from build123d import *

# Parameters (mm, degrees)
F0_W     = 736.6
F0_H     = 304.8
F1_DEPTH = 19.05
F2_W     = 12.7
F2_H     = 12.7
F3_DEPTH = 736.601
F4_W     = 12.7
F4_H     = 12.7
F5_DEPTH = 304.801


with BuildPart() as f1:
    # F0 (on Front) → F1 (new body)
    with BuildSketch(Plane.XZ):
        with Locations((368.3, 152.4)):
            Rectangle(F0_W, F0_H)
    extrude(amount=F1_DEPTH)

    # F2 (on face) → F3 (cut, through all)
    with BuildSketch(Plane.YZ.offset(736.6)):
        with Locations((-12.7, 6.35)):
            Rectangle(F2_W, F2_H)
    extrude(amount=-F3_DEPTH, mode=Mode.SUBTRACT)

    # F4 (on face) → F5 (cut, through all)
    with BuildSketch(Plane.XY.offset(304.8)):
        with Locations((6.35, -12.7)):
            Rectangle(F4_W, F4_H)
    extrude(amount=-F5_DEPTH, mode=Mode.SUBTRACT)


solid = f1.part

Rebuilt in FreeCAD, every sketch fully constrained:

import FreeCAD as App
import Part
import Sketcher
from FreeCAD import Vector
Q = App.Units.Quantity

doc = App.newDocument("Part")
params = doc.addObject("Spreadsheet::Sheet", "Params")
for row, (alias, value) in enumerate([
    ("sketch1_width", "29 in"),
    ("sketch1_height", "12 in"),
    ("pad1_length", "0.75 in"),
    ("sketch2_width", "0.5 in"),
    ("sketch3_width", "0.5 in"),
], start=1):
    params.set(f"A{row}", alias)
    params.set(f"B{row}", "=" + value)
    params.setAlias(f"B{row}", alias)

body = doc.addObject("PartDesign::Body", "Body")

sketch1 = body.newObject("Sketcher::SketchObject", "Sketch")
sketch1.AttachmentSupport = (doc.getObject("XZ_Plane"), [""])
sketch1.MapMode = "FlatFace"
sketch1.addGeometry([
    Part.LineSegment(Vector(0, 305, 0), Vector(0, 0, 0)),
    Part.LineSegment(Vector(0, 0, 0), Vector(737, 0, 0)),
    Part.LineSegment(Vector(737, 0, 0), Vector(737, 305, 0)),
    Part.LineSegment(Vector(737, 305, 0), Vector(0, 305, 0)),
], False)
sketch1.addConstraint([
    Sketcher.Constraint("Coincident", 0, 2, 1, 1),
    Sketcher.Constraint("Coincident", 1, 2, 2, 1),
    Sketcher.Constraint("Coincident", 2, 2, 3, 1),
    Sketcher.Constraint("Coincident", 3, 2, 0, 1),
    Sketcher.Constraint("Vertical", 0),
    Sketcher.Constraint("Horizontal", 1),
    Sketcher.Constraint("Vertical", 2),
    Sketcher.Constraint("Horizontal", 3),
    Sketcher.Constraint("Coincident", 0, 2, -1, 1),
    Sketcher.Constraint("DistanceX", 1, 1, 1, 2, Q("29 in")),
    Sketcher.Constraint("DistanceY", 0, 2, 0, 1, Q("12 in")),
])
sketch1.setExpression("Constraints[9]", "Params.sketch1_width")
sketch1.setExpression("Constraints[10]", "Params.sketch1_height")
pad1 = body.newObject("PartDesign::Pad", "Pad")
pad1.Profile = sketch1
pad1.setExpression("Length", "Params.pad1_length")

sketch2 = body.newObject("Sketcher::SketchObject", "Sketch001")
sketch2.AttachmentSupport = (doc.getObject("YZ_Plane"), [""])
sketch2.MapMode = "FlatFace"
sketch2.AttachmentOffset = App.Placement(Vector(0, 0, 29 * 25.4), App.Rotation())
sketch2.addGeometry([
    Part.LineSegment(Vector(-19, 13, 0), Vector(-19, 0, 0)),
    Part.LineSegment(Vector(-19, 0, 0), Vector(-6, 0, 0)),
    Part.LineSegment(Vector(-6, 0, 0), Vector(-6, 13, 0)),
    Part.LineSegment(Vector(-6, 13, 0), Vector(-19, 13, 0)),
], False)
sketch2.addConstraint([
    Sketcher.Constraint("Coincident", 0, 2, 1, 1),
    Sketcher.Constraint("Coincident", 1, 2, 2, 1),
    Sketcher.Constraint("Coincident", 2, 2, 3, 1),
    Sketcher.Constraint("Coincident", 3, 2, 0, 1),
    Sketcher.Constraint("Vertical", 0),
    Sketcher.Constraint("Horizontal", 1),
    Sketcher.Constraint("Vertical", 2),
    Sketcher.Constraint("Horizontal", 3),
    Sketcher.Constraint("PointOnObject", 0, 2, -1),
    Sketcher.Constraint("Equal", 3, 0),
    Sketcher.Constraint("DistanceX", 1, 1, 1, 2, Q("0.5 in")),
    Sketcher.Constraint("DistanceX", 0, 2, -1, 1, Q("0.75 in")),
])
sketch2.setExpression("Constraints[10]", "Params.sketch2_width")
pocket1 = body.newObject("PartDesign::Pocket", "Pocket")
pocket1.Profile = sketch2
pocket1.Type = "ThroughAll"

sketch3 = body.newObject("Sketcher::SketchObject", "Sketch002")
sketch3.AttachmentSupport = (doc.getObject("XY_Plane"), [""])
sketch3.MapMode = "FlatFace"
sketch3.AttachmentOffset = App.Placement(Vector(0, 0, 12 * 25.4), App.Rotation())
sketch3.addGeometry([
    Part.LineSegment(Vector(0, -6, 0), Vector(0, -19, 0)),
    Part.LineSegment(Vector(0, -19, 0), Vector(13, -19, 0)),
    Part.LineSegment(Vector(13, -19, 0), Vector(13, -6, 0)),
    Part.LineSegment(Vector(13, -6, 0), Vector(0, -6, 0)),
], False)
sketch3.addConstraint([
    Sketcher.Constraint("Coincident", 0, 2, 1, 1),
    Sketcher.Constraint("Coincident", 1, 2, 2, 1),
    Sketcher.Constraint("Coincident", 2, 2, 3, 1),
    Sketcher.Constraint("Coincident", 3, 2, 0, 1),
    Sketcher.Constraint("Vertical", 0),
    Sketcher.Constraint("Horizontal", 1),
    Sketcher.Constraint("Vertical", 2),
    Sketcher.Constraint("Horizontal", 3),
    Sketcher.Constraint("PointOnObject", 0, 2, -2),
    Sketcher.Constraint("Equal", 3, 0),
    Sketcher.Constraint("DistanceX", 1, 1, 1, 2, Q("0.5 in")),
    Sketcher.Constraint("DistanceY", 0, 2, -1, 1, Q("0.75 in")),
])
sketch3.setExpression("Constraints[10]", "Params.sketch3_width")
pocket2 = body.newObject("PartDesign::Pocket", "Pocket001")
pocket2.Profile = sketch3
pocket2.Type = "ThroughAll"

doc.recompute()
